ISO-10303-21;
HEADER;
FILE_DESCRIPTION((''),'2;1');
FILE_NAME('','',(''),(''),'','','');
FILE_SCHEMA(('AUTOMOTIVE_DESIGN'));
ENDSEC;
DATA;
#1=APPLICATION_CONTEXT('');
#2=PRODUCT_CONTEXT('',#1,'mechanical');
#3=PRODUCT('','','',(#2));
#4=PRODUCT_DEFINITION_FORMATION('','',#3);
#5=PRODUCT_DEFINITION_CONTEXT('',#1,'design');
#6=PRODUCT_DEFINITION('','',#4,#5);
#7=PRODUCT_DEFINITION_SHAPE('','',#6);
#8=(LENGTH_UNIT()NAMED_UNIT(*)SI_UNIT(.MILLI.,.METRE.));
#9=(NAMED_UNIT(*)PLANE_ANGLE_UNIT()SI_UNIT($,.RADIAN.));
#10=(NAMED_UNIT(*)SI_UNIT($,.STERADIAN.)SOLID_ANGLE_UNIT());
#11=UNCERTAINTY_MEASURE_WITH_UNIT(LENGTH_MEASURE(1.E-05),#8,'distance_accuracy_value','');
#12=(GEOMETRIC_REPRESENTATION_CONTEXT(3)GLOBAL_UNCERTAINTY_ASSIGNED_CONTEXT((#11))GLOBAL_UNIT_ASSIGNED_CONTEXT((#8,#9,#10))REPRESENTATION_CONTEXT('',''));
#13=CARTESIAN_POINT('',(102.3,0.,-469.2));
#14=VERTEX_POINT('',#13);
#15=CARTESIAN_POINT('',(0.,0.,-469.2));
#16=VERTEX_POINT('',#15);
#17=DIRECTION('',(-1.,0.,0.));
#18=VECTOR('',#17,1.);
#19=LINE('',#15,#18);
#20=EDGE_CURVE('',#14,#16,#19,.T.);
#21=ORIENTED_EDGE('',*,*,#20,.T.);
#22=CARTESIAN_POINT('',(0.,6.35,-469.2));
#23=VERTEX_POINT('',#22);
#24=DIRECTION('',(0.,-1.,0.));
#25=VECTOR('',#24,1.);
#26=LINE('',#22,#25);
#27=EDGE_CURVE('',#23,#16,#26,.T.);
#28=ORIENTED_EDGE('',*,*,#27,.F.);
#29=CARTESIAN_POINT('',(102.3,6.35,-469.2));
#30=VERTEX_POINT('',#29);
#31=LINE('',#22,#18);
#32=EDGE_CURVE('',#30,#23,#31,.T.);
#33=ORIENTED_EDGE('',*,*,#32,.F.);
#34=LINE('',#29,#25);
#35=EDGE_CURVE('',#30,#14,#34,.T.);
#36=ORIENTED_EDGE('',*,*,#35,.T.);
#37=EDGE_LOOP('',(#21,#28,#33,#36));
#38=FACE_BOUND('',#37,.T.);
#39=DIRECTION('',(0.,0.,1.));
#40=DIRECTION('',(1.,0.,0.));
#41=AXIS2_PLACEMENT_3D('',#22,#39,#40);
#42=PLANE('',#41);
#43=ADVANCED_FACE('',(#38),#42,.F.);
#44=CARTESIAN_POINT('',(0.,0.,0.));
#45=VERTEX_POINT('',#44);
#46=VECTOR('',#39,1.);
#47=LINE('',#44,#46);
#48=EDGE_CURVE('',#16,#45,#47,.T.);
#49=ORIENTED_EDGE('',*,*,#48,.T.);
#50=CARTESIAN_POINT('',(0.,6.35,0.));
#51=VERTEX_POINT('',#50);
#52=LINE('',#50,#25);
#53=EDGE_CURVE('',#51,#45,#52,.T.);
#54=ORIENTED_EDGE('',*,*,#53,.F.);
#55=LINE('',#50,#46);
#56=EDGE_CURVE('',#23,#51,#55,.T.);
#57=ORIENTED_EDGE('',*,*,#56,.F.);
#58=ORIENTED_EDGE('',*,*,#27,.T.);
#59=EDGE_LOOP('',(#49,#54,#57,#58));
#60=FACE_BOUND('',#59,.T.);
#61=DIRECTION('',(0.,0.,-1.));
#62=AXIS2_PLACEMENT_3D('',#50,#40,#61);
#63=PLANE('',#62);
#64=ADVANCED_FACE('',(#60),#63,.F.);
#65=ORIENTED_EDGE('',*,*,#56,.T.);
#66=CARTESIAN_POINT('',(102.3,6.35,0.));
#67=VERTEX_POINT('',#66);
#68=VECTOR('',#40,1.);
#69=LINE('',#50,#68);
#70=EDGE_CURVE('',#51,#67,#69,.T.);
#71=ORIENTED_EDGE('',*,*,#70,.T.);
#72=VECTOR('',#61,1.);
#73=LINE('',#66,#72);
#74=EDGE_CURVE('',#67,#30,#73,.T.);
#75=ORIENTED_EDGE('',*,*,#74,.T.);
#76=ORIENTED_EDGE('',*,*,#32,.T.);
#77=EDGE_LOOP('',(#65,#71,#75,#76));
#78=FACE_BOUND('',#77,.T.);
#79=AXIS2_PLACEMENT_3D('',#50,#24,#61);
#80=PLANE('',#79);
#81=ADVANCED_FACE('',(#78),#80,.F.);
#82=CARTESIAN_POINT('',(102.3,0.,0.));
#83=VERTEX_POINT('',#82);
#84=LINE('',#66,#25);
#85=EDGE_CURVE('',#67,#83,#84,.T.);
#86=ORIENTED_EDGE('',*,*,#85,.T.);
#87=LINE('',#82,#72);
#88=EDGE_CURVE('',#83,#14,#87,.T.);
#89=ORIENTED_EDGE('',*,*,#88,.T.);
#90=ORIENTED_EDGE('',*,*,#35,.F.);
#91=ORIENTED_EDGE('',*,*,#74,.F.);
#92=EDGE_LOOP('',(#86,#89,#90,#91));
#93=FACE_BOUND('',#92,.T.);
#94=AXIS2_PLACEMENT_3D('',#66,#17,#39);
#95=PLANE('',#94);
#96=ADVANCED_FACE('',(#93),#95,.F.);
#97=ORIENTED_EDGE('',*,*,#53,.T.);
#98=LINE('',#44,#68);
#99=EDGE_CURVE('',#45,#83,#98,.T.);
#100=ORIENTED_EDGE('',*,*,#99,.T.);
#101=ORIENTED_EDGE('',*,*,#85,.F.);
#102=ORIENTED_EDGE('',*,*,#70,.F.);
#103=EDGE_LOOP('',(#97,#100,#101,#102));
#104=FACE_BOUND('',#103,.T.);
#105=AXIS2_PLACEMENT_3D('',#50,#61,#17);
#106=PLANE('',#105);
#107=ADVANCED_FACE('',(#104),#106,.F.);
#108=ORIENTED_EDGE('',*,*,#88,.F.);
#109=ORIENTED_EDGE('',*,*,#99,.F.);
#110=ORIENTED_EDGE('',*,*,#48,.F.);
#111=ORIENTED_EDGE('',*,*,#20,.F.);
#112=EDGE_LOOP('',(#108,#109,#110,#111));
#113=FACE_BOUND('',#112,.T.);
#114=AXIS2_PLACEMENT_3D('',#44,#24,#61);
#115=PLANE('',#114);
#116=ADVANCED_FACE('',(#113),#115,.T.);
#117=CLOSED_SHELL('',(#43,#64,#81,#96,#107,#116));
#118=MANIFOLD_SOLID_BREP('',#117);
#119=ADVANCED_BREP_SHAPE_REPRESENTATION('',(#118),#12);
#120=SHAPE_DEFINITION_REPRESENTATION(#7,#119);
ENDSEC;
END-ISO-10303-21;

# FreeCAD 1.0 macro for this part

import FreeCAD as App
import Part
import Sketcher

V = App.Vector
Q = App.Units.Quantity

doc = App.newDocument("Part")
body = doc.addObject("PartDesign::Body", "Body")

sketch1 = doc.addObject("Sketcher::SketchObject", "Sketch")
body.addObject(sketch1)
sketch1.AttachmentSupport = (doc.XZ_Plane, [""])
sketch1.MapMode = "FlatFace"
sketch1.addGeometry(Part.LineSegment(V(0, -469, 0), V(0, 0, 0)), False)
sketch1.addGeometry(Part.LineSegment(V(0, 0, 0), V(102, 0, 0)), False)
sketch1.addGeometry(Part.LineSegment(V(102, 0, 0), V(102, -469, 0)), False)
sketch1.addGeometry(Part.LineSegment(V(102, -469, 0), V(0, -469, 0)), False)
sketch1.addConstraint(Sketcher.Constraint("Coincident", 0, 2, 1, 1))
sketch1.addConstraint(Sketcher.Constraint("Coincident", 1, 2, 2, 1))
sketch1.addConstraint(Sketcher.Constraint("Coincident", 2, 2, 3, 1))
sketch1.addConstraint(Sketcher.Constraint("Coincident", 3, 2, 0, 1))
sketch1.addConstraint(Sketcher.Constraint("Vertical", 0))
sketch1.addConstraint(Sketcher.Constraint("Horizontal", 1))
sketch1.addConstraint(Sketcher.Constraint("Vertical", 2))
sketch1.addConstraint(Sketcher.Constraint("Horizontal", 3))
sketch1.addConstraint(Sketcher.Constraint("Coincident", 0, 2, -1, 1))
sketch1.addConstraint(Sketcher.Constraint("DistanceX", 1, 1, 1, 2, Q("102.3 mm")))
sketch1.addConstraint(Sketcher.Constraint("DistanceY", 0, 1, 0, 2, Q("469.2 mm")))
pad1 = doc.addObject("PartDesign::Pad", "Pad")
body.addObject(pad1)
pad1.Profile = sketch1
pad1.Length = 6.35
pad1.Reversed = True

doc.recompute()
